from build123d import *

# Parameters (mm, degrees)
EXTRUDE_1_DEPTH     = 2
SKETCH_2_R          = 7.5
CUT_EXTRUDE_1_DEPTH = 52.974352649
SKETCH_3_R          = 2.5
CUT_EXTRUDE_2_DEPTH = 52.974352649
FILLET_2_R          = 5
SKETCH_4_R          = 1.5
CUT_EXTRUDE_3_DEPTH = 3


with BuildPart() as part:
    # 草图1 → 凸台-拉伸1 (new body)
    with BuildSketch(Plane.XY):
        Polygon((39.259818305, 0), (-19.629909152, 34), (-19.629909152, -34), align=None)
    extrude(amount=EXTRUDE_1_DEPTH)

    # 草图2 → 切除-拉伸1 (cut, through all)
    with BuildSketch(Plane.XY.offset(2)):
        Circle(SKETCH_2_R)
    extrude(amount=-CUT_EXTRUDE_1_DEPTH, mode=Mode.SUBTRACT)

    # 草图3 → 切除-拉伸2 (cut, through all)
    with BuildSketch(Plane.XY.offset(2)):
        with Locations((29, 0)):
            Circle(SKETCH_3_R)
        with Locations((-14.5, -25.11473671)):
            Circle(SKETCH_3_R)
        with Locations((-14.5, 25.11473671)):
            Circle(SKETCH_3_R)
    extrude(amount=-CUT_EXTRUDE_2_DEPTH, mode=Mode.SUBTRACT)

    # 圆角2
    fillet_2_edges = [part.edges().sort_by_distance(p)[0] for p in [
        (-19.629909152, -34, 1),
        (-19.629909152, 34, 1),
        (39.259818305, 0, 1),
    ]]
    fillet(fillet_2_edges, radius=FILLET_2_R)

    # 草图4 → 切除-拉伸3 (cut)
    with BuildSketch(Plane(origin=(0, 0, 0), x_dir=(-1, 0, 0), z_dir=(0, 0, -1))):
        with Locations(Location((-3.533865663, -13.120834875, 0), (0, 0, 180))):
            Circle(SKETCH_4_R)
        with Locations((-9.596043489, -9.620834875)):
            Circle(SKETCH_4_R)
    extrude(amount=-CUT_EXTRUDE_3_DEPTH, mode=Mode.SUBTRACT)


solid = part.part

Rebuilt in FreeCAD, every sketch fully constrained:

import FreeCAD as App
import Part
import Sketcher
Q = App.Units.Quantity


def edges_at(feature, points):
    """Names of the edges that pass closest to the given points."""
    edges = feature.Shape.Edges
    near = lambda p: min(range(len(edges)), key=lambda i: edges[i].distToShape(Part.Vertex(*p))[0])
    return sorted({f"Edge{near(p) + 1}" for p in points})

doc = App.newDocument("Part")
body = doc.addObject("PartDesign::Body", "Body")

# Sketch on XY plane
sketch1 = body.newObject("Sketcher::SketchObject", "Sketch")
sketch1.AttachmentSupport = (doc.getObject("XY_Plane"), [""])
sketch1.MapMode = "FlatFace"
sketch1.addGeometry(Part.LineSegment(App.Vector(39.259818, 0, 0), App.Vector(-19.629909, 34, 0)), False)
sketch1.addGeometry(Part.LineSegment(App.Vector(-19.629909, 34, 0), App.Vector(-19.629909, -34, 0)), False)
sketch1.addGeometry(Part.LineSegment(App.Vector(-19.629909, -34, 0), App.Vector(39.259818, 0, 0)), False)
sketch1.addConstraint(Sketcher.Constraint("Coincident", 0, 2, 1, 1))
sketch1.addConstraint(Sketcher.Constraint("Coincident", 1, 2, 2, 1))
sketch1.addConstraint(Sketcher.Constraint("Coincident", 2, 2, 0, 1))
sketch1.addConstraint(Sketcher.Constraint("Vertical", 1))
sketch1.addConstraint(Sketcher.Constraint("PointOnObject", 2, 2, -1))
sketch1.addConstraint(Sketcher.Constraint("Equal", 0, 2))
sketch1.addConstraint(Sketcher.Constraint("DistanceY", 1, 2, 1, 1, 68.0))
sketch1.addConstraint(Sketcher.Constraint("Angle", 0, Q("150 deg")))
sketch1.addConstraint(Sketcher.Constraint("DistanceX", 0, 2, -1, 1, 19.629909))
pad1 = body.newObject("PartDesign::Pad", "Pad")
pad1.Profile = sketch1
pad1.Length = 2

# Sketch on XY plane
sketch2 = body.newObject("Sketcher::SketchObject", "Sketch001")
sketch2.AttachmentSupport = (doc.getObject("XY_Plane"), [""])
sketch2.MapMode = "FlatFace"
sketch2.AttachmentOffset = App.Placement(App.Vector(0, 0, 2), App.Rotation())
sketch2.addGeometry(Part.Circle(App.Vector(0, 0, 0), App.Vector(0, 0, 1), 7.5), False)
sketch2.addConstraint(Sketcher.Constraint("Coincident", 0, 3, -1, 1))
sketch2.addConstraint(Sketcher.Constraint("Diameter", 0, 15.0))
pocket1 = body.newObject("PartDesign::Pocket", "Pocket")
pocket1.Profile = sketch2
pocket1.Type = "ThroughAll"

# Sketch on XY plane
sketch3 = body.newObject("Sketcher::SketchObject", "Sketch002")
sketch3.AttachmentSupport = (doc.getObject("XY_Plane"), [""])
sketch3.MapMode = "FlatFace"
sketch3.AttachmentOffset = App.Placement(App.Vector(0, 0, 2), App.Rotation())
sketch3.addGeometry(Part.Circle(App.Vector(29, 0, 0), App.Vector(0, 0, 1), 2.5), False)
sketch3.addGeometry(Part.Circle(App.Vector(-14.5, -25.114737, 0), App.Vector(0, 0, 1), 2.5), False)
sketch3.addGeometry(Part.Circle(App.Vector(-14.5, 25.114737, 0), App.Vector(0, 0, 1), 2.5), False)
sketch3.addConstraint(Sketcher.Constraint("Equal", 0, 1))
sketch3.addConstraint(Sketcher.Constraint("Equal", 1, 2))
sketch3.addConstraint(Sketcher.Constraint("Symmetric", 1, 3, 2, 3, -1))
sketch3.addConstraint(Sketcher.Constraint("PointOnObject", 0, 3, -1))
sketch3.addConstraint(Sketcher.Constraint("Diameter", 0, 5.0))
sketch3.addConstraint(Sketcher.Constraint("DistanceX", -1, 1, 0, 3, 29.0))
sketch3.addConstraint(Sketcher.Constraint("DistanceX", 1, 3, -1, 1, 14.5))
sketch3.addConstraint(Sketcher.Constraint("DistanceY", 1, 3, -1, 1, 25.114737))
pocket2 = body.newObject("PartDesign::Pocket", "Pocket001")
pocket2.Profile = sketch3
pocket2.Type = "ThroughAll"
doc.recompute()

fillet = body.newObject("PartDesign::Fillet", "Fillet")
fillet.Base = (pocket2, edges_at(pocket2, [(-19.63, -34, 1), (-19.63, 34, 1), (39.26, 0, 1)]))
fillet.Radius = 5

# Sketch on XY plane
sketch4 = body.newObject("Sketcher::SketchObject", "Sketch003")
sketch4.AttachmentSupport = (doc.getObject("XY_Plane"), [""])
sketch4.MapMode = "FlatFace"
sketch4.addGeometry(Part.Circle(App.Vector(3.533866, -13.120835, 0), App.Vector(0, 0, 1), 1.5), False)
sketch4.addGeometry(Part.Circle(App.Vector(9.596043, -9.620835, 0), App.Vector(0, 0, 1), 1.5), False)
sketch4.addConstraint(Sketcher.Constraint("Equal", 0, 1))
sketch4.addConstraint(Sketcher.Constraint("Diameter", 0, 3.0))
sketch4.addConstraint(Sketcher.Constraint("DistanceY", 0, 3, 1, 3, 3.5))
sketch4.addConstraint(Sketcher.Constraint("DistanceX", -1, 1, 0, 3, 3.533866))
sketch4.addConstraint(Sketcher.Constraint("DistanceY", 0, 3, -1, 1, 13.120835))
sketch4.addConstraint(Sketcher.Constraint("DistanceX", -1, 1, 1, 3, 9.596043))
pocket3 = body.newObject("PartDesign::Pocket", "Pocket002")
pocket3.Profile = sketch4
pocket3.Length = 3
pocket3.Reversed = True

doc.recompute()
